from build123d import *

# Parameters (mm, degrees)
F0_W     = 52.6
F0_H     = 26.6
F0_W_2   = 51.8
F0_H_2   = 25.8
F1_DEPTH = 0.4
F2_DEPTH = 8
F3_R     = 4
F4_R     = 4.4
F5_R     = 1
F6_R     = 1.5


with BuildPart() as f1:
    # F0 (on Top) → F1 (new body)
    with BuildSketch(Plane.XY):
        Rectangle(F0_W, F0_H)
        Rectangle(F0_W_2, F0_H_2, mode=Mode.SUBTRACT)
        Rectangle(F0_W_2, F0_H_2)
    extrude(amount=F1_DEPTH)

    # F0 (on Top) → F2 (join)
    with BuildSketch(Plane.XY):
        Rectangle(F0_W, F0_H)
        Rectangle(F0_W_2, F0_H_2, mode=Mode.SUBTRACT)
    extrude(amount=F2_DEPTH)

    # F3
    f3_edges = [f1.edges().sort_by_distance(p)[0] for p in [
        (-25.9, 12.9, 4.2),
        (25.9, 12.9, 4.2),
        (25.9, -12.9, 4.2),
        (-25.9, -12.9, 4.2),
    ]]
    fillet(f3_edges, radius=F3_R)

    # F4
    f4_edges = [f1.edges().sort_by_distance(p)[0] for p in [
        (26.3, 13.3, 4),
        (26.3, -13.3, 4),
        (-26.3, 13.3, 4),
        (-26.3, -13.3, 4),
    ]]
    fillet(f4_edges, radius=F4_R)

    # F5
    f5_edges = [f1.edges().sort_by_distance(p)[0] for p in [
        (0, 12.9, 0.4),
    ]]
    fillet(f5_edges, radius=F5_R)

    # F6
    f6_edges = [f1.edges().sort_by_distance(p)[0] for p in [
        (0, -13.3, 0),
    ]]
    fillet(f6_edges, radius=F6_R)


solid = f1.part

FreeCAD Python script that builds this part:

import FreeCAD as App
import Part
import Sketcher
Q = App.Units.Quantity


def edges_at(feature, points):
    """Names of the edges that pass closest to the given points."""
    edges = feature.Shape.Edges
    near = lambda p: min(range(len(edges)), key=lambda i: edges[i].distToShape(Part.Vertex(*p))[0])
    return sorted({f"Edge{near(p) + 1}" for p in points})

doc = App.newDocument("Part")
params = doc.addObject("Spreadsheet::Sheet", "Params")
for row, (alias, value) in enumerate([
    ("sketch1_width", "52.6 mm"),
    ("sketch1_height", "26.6 mm"),
    ("pad1_length", "0.4 mm"),
    ("sketch2_width", "52.6 mm"),
    ("sketch2_width2", "51.8 mm"),
    ("sketch2_height", "26.6 mm"),
    ("sketch2_height2", "25.8 mm"),
    ("pad2_length", "8 mm"),
    ("fillet_radius", "4 mm"),
    ("fillet2_radius", "4.4 mm"),
    ("fillet3_radius", "1 mm"),
    ("fillet4_radius", "1.5 mm"),
], start=1):
    params.set(f"A{row}", alias)
    params.set(f"B{row}", "=" + value)
    params.setAlias(f"B{row}", alias)

body = doc.addObject("PartDesign::Body", "Body")

sketch1 = doc.addObject("Sketcher::SketchObject", "Sketch")
body.addObject(sketch1)
sketch1.AttachmentSupport = (doc.XY_Plane, [""])
sketch1.MapMode = "FlatFace"
sketch1.addGeometry(Part.LineSegment(App.Vector(-26, 13, 0), App.Vector(-26, -13, 0)), False)
sketch1.addGeometry(Part.LineSegment(App.Vector(-26, -13, 0), App.Vector(26, -13, 0)), False)
sketch1.addGeometry(Part.LineSegment(App.Vector(26, -13, 0), App.Vector(26, 13, 0)), False)
sketch1.addGeometry(Part.LineSegment(App.Vector(26, 13, 0), App.Vector(-26, 13, 0)), False)
sketch1.addConstraint(Sketcher.Constraint("Coincident", 0, 2, 1, 1))
sketch1.addConstraint(Sketcher.Constraint("Coincident", 1, 2, 2, 1))
sketch1.addConstraint(Sketcher.Constraint("Coincident", 2, 2, 3, 1))
sketch1.addConstraint(Sketcher.Constraint("Coincident", 3, 2, 0, 1))
sketch1.addConstraint(Sketcher.Constraint("Vertical", 0))
sketch1.addConstraint(Sketcher.Constraint("Horizontal", 1))
sketch1.addConstraint(Sketcher.Constraint("Vertical", 2))
sketch1.addConstraint(Sketcher.Constraint("Horizontal", 3))
sketch1.addConstraint(Sketcher.Constraint("Symmetric", 0, 2, 2, 2, -1, 1))
sketch1.addConstraint(Sketcher.Constraint("DistanceX", 1, 1, 1, 2, Q("52.6 mm")))
sketch1.addConstraint(Sketcher.Constraint("DistanceY", 0, 2, 0, 1, Q("26.6 mm")))
sketch1.setExpression("Constraints[9]", "Params.sketch1_width")
sketch1.setExpression("Constraints[10]", "Params.sketch1_height")
pad1 = doc.addObject("PartDesign::Pad", "Pad")
body.addObject(pad1)
pad1.Profile = sketch1
pad1.setExpression("Length", "Params.pad1_length")

sketch2 = doc.addObject("Sketcher::SketchObject", "Sketch001")
body.addObject(sketch2)
sketch2.AttachmentSupport = (doc.XY_Plane, [""])
sketch2.MapMode = "FlatFace"
sketch2.addGeometry(Part.LineSegment(App.Vector(-26, 13, 0), App.Vector(-26, -13, 0)), False)
sketch2.addGeometry(Part.LineSegment(App.Vector(-26, -13, 0), App.Vector(26, -13, 0)), False)
sketch2.addGeometry(Part.LineSegment(App.Vector(26, -13, 0), App.Vector(26, 13, 0)), False)
sketch2.addGeometry(Part.LineSegment(App.Vector(26, 13, 0), App.Vector(-26, 13, 0)), False)
sketch2.addGeometry(Part.LineSegment(App.Vector(26, -13, 0), App.Vector(-26, -13, 0)), False)
sketch2.addGeometry(Part.LineSegment(App.Vector(-26, -13, 0), App.Vector(-26, 13, 0)), False)
sketch2.addGeometry(Part.LineSegment(App.Vector(-26, 13, 0), App.Vector(26, 13, 0)), False)
sketch2.addGeometry(Part.LineSegment(App.Vector(26, 13, 0), App.Vector(26, -13, 0)), False)
sketch2.addConstraint(Sketcher.Constraint("Coincident", 0, 2, 1, 1))
sketch2.addConstraint(Sketcher.Constraint("Coincident", 1, 2, 2, 1))
sketch2.addConstraint(Sketcher.Constraint("Coincident", 2, 2, 3, 1))
sketch2.addConstraint(Sketcher.Constraint("Coincident", 3, 2, 0, 1))
sketch2.addConstraint(Sketcher.Constraint("Coincident", 4, 2, 5, 1))
sketch2.addConstraint(Sketcher.Constraint("Coincident", 5, 2, 6, 1))
sketch2.addConstraint(Sketcher.Constraint("Coincident", 6, 2, 7, 1))
sketch2.addConstraint(Sketcher.Constraint("Coincident", 7, 2, 4, 1))
sketch2.addConstraint(Sketcher.Constraint("Vertical", 0))
sketch2.addConstraint(Sketcher.Constraint("Horizontal", 1))
sketch2.addConstraint(Sketcher.Constraint("Vertical", 2))
sketch2.addConstraint(Sketcher.Constraint("Horizontal", 3))
sketch2.addConstraint(Sketcher.Constraint("Horizontal", 4))
sketch2.addConstraint(Sketcher.Constraint("Vertical", 5))
sketch2.addConstraint(Sketcher.Constraint("Horizontal", 6))
sketch2.addConstraint(Sketcher.Constraint("Vertical", 7))
sketch2.addConstraint(Sketcher.Constraint("Symmetric", 0, 2, 2, 2, -1, 1))
sketch2.addConstraint(Sketcher.Constraint("Symmetric", 4, 2, 6, 2, -1, 1))
sketch2.addConstraint(Sketcher.Constraint("DistanceX", 1, 1, 1, 2, Q("52.6 mm")))
sketch2.addConstraint(Sketcher.Constraint("DistanceX", 4, 2, 4, 1, Q("51.8 mm")))
sketch2.addConstraint(Sketcher.Constraint("DistanceY", 0, 2, 0, 1, Q("26.6 mm")))
sketch2.addConstraint(Sketcher.Constraint("DistanceY", 5, 1, 5, 2, Q("25.8 mm")))
sketch2.setExpression("Constraints[18]", "Params.sketch2_width")
sketch2.setExpression("Constraints[19]", "Params.sketch2_width2")
sketch2.setExpression("Constraints[20]", "Params.sketch2_height")
sketch2.setExpression("Constraints[21]", "Params.sketch2_height2")
pad2 = doc.addObject("PartDesign::Pad", "Pad001")
body.addObject(pad2)
pad2.Profile = sketch2
pad2.setExpression("Length", "Params.pad2_length")
doc.recompute()

fillet = doc.addObject("PartDesign::Fillet", "Fillet")
body.addObject(fillet)
fillet.Base = (pad2, edges_at(pad2, [
    (-25.9, 12.9, 4.2),
    (25.9, 12.9, 4.2),
    (25.9, -12.9, 4.2),
    (-25.9, -12.9, 4.2),
]))
fillet.setExpression("Radius", "Params.fillet_radius")
doc.recompute()

fillet2 = doc.addObject("PartDesign::Fillet", "Fillet001")
body.addObject(fillet2)
fillet2.Base = (fillet, edges_at(fillet, [
    (26.3, 13.3, 4),
    (26.3, -13.3, 4),
    (-26.3, 13.3, 4),
    (-26.3, -13.3, 4),
]))
fillet2.setExpression("Radius", "Params.fillet2_radius")
doc.recompute()

fillet3 = doc.addObject("PartDesign::Fillet", "Fillet002")
body.addObject(fillet3)
fillet3.Base = (fillet2, edges_at(fillet2, [(0, 12.9, 0.4)]))
fillet3.setExpression("Radius", "Params.fillet3_radius")
doc.recompute()

fillet4 = doc.addObject("PartDesign::Fillet", "Fillet003")
body.addObject(fillet4)
fillet4.Base = (fillet3, edges_at(fillet3, [(0, -13.3, 0)]))
fillet4.setExpression("Radius", "Params.fillet4_radius")

doc.recompute()
